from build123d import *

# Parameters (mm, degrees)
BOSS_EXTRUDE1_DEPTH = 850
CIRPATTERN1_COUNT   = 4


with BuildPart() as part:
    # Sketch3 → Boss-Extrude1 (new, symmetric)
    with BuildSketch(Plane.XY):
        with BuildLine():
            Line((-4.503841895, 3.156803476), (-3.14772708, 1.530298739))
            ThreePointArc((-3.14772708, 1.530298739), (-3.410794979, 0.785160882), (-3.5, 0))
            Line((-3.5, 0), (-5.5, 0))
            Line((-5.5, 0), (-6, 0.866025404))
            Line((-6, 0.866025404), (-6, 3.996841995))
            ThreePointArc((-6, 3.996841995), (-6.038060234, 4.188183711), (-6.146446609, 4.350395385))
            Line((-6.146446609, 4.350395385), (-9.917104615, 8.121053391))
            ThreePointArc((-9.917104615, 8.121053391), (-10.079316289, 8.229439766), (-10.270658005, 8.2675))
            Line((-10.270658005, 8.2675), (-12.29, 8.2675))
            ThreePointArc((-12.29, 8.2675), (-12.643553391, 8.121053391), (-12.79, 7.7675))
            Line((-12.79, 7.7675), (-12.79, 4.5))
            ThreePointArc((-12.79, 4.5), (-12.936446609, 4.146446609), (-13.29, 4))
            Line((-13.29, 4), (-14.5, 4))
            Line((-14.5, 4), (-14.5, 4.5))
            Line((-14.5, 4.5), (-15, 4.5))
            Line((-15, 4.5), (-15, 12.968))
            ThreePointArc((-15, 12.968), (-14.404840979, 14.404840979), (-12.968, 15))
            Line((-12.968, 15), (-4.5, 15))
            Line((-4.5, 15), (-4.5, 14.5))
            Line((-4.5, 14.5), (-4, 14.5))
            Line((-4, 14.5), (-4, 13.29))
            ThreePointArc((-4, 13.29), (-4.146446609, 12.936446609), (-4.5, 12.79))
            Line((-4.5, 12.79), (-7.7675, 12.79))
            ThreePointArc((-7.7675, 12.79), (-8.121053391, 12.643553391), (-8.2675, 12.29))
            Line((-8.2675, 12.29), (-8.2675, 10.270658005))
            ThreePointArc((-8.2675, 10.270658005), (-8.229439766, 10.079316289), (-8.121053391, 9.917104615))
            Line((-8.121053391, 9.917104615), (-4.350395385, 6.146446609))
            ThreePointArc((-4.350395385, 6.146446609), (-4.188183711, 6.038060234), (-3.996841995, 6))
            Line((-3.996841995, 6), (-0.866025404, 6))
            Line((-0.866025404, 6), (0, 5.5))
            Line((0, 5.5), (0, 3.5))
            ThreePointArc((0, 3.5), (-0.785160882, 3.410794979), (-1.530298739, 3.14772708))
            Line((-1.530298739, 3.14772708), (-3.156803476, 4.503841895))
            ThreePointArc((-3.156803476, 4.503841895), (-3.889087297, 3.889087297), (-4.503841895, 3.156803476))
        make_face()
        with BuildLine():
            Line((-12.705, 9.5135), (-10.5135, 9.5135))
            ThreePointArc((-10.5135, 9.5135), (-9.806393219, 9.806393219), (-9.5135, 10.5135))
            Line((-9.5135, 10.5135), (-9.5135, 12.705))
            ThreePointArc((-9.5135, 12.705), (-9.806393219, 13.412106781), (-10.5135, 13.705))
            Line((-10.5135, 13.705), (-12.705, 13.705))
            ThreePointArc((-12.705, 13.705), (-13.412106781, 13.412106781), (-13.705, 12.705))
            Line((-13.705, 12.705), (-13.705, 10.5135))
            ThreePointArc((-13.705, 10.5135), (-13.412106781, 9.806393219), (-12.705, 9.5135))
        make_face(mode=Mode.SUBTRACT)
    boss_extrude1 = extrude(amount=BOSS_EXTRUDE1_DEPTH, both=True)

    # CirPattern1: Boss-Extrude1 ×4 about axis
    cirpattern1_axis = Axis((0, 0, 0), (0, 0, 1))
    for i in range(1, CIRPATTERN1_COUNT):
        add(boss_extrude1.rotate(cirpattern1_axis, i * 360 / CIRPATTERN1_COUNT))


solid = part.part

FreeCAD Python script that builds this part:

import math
import FreeCAD as App
import Part
import Sketcher
Q = App.Units.Quantity

doc = App.newDocument("Part")
params = doc.addObject("Spreadsheet::Sheet", "Params")
for row, (alias, value) in enumerate([
    ("sketch1_radius", "1 mm"),
    ("sketch1_radius2", "5.5 mm"),
    ("sketch1_radius3", "3.5 mm"),
    ("sketch1_radius4", "0.5 mm"),
    ("sketch1_width", "2 mm"),
    ("pad1_length", "1700 mm"),
], start=1):
    params.set(f"A{row}", alias)
    params.set(f"B{row}", "=" + value)
    params.setAlias(f"B{row}", alias)

body = doc.addObject("PartDesign::Body", "Body")

# Sketch on XY plane
sketch1 = body.newObject("Sketcher::SketchObject", "Sketch")
sketch1.AttachmentSupport = (doc.getObject("XY_Plane"), [""])
sketch1.MapMode = "FlatFace"
sketch1.addGeometry(Part.LineSegment(App.Vector(-3.15, 1.53, 0), App.Vector(-4.5, 3.16, 0)), False)
sketch1.addGeometry(Part.ArcOfCircle(Part.Circle(App.Vector(0, 0, 0), App.Vector(0, 0, 1), 5.5), math.radians(125.03), math.radians(144.97)), False)
sketch1.addGeometry(Part.LineSegment(App.Vector(-3.16, 4.5, 0), App.Vector(-1.53, 3.15, 0)), False)
sketch1.addGeometry(Part.ArcOfCircle(Part.Circle(App.Vector(0, 0, 0), App.Vector(0, 0, 1), 3.5), math.radians(90), math.radians(116)), False)
sketch1.addGeometry(Part.LineSegment(App.Vector(0, 3.5, 0), App.Vector(0, 5.5, 0)), False)
sketch1.addGeometry(Part.LineSegment(App.Vector(0, 5.5, 0), App.Vector(-0.87, 6, 0)), False)
sketch1.addGeometry(Part.LineSegment(App.Vector(-0.87, 6, 0), App.Vector(-4, 6, 0)), False)
sketch1.addGeometry(Part.ArcOfCircle(Part.Circle(App.Vector(-4, 6.5, 0), App.Vector(0, 0, 1), 0.5), math.radians(-135), math.radians(-90)), False)
sketch1.addGeometry(Part.LineSegment(App.Vector(-4.35, 6.15, 0), App.Vector(-8.12, 9.92, 0)), False)
sketch1.addGeometry(Part.ArcOfCircle(Part.Circle(App.Vector(-7.77, 10.27, 0), App.Vector(0, 0, 1), 0.5), math.radians(-180), math.radians(-135)), False)
sketch1.addGeometry(Part.LineSegment(App.Vector(-8.27, 10.27, 0), App.Vector(-8.27, 12.29, 0)), False)
sketch1.addGeometry(Part.ArcOfCircle(Part.Circle(App.Vector(-7.77, 12.29, 0), App.Vector(0, 0, 1), 0.5), math.radians(90), math.radians(180)), False)
sketch1.addGeometry(Part.LineSegment(App.Vector(-7.77, 12.79, 0), App.Vector(-4.5, 12.79, 0)), False)
sketch1.addGeometry(Part.ArcOfCircle(Part.Circle(App.Vector(-4.5, 13.29, 0), App.Vector(0, 0, 1), 0.5), math.radians(-90), math.radians(0)), False)
sketch1.addGeometry(Part.LineSegment(App.Vector(-4, 13.29, 0), App.Vector(-4, 14.5, 0)), False)
sketch1.addGeometry(Part.LineSegment(App.Vector(-4, 14.5, 0), App.Vector(-4.5, 14.5, 0)), False)
sketch1.addGeometry(Part.LineSegment(App.Vector(-4.5, 14.5, 0), App.Vector(-4.5, 15, 0)), False)
sketch1.addGeometry(Part.LineSegment(App.Vector(-4.5, 15, 0), App.Vector(-12.97, 15, 0)), False)
sketch1.addGeometry(Part.ArcOfCircle(Part.Circle(App.Vector(-12.97, 12.97, 0), App.Vector(0, 0, 1), 2.03), math.radians(90), math.radians(180)), False)
sketch1.addGeometry(Part.LineSegment(App.Vector(-15, 12.97, 0), App.Vector(-15, 4.5, 0)), False)
sketch1.addGeometry(Part.LineSegment(App.Vector(-15, 4.5, 0), App.Vector(-14.5, 4.5, 0)), False)
sketch1.addGeometry(Part.LineSegment(App.Vector(-14.5, 4.5, 0), App.Vector(-14.5, 4, 0)), False)
sketch1.addGeometry(Part.LineSegment(App.Vector(-14.5, 4, 0), App.Vector(-13.29, 4, 0)), False)
sketch1.addGeometry(Part.ArcOfCircle(Part.Circle(App.Vector(-13.29, 4.5, 0), App.Vector(0, 0, 1), 0.5), math.radians(-90), math.radians(0)), False)
sketch1.addGeometry(Part.LineSegment(App.Vector(-12.79, 4.5, 0), App.Vector(-12.79, 7.77, 0)), False)
sketch1.addGeometry(Part.ArcOfCircle(Part.Circle(App.Vector(-12.29, 7.77, 0), App.Vector(0, 0, 1), 0.5), math.radians(90), math.radians(180)), False)
sketch1.addGeometry(Part.LineSegment(App.Vector(-12.29, 8.27, 0), App.Vector(-10.27, 8.27, 0)), False)
sketch1.addGeometry(Part.ArcOfCircle(Part.Circle(App.Vector(-10.27, 7.77, 0), App.Vector(0, 0, 1), 0.5), math.radians(45), math.radians(90)), False)
sketch1.addGeometry(Part.LineSegment(App.Vector(-9.92, 8.12, 0), App.Vector(-6.15, 4.35, 0)), False)
sketch1.addGeometry(Part.ArcOfCircle(Part.Circle(App.Vector(-6.5, 4, 0), App.Vector(0, 0, 1), 0.5), math.radians(0), math.radians(45)), False)
sketch1.addGeometry(Part.LineSegment(App.Vector(-6, 4, 0), App.Vector(-6, 0.87, 0)), False)
sketch1.addGeometry(Part.LineSegment(App.Vector(-6, 0.87, 0), App.Vector(-5.5, 0, 0)), False)
sketch1.addGeometry(Part.LineSegment(App.Vector(-5.5, 0, 0), App.Vector(-3.5, 0, 0)), False)
sketch1.addGeometry(Part.ArcOfCircle(Part.Circle(App.Vector(0, 0, 0), App.Vector(0, 0, 1), 3.5), math.radians(154), math.radians(180)), False)
sketch1.addGeometry(Part.ArcOfCircle(Part.Circle(App.Vector(-12.7, 10.51, 0), App.Vector(0, 0, 1), 1), math.radians(-180), math.radians(-90)), False)
sketch1.addGeometry(Part.LineSegment(App.Vector(-13.71, 10.51, 0), App.Vector(-13.71, 12.71, 0)), False)
sketch1.addGeometry(Part.ArcOfCircle(Part.Circle(App.Vector(-12.7, 12.7, 0), App.Vector(0, 0, 1), 1), math.radians(90), math.radians(180)), False)
sketch1.addGeometry(Part.LineSegment(App.Vector(-12.71, 13.71, 0), App.Vector(-10.51, 13.71, 0)), False)
sketch1.addGeometry(Part.ArcOfCircle(Part.Circle(App.Vector(-10.51, 12.7, 0), App.Vector(0, 0, 1), 1), math.radians(0), math.radians(90)), False)
sketch1.addGeometry(Part.LineSegment(App.Vector(-9.51, 12.71, 0), App.Vector(-9.51, 10.51, 0)), False)
sketch1.addGeometry(Part.ArcOfCircle(Part.Circle(App.Vector(-10.51, 10.51, 0), App.Vector(0, 0, 1), 1), math.radians(-90), math.radians(0)), False)
sketch1.addGeometry(Part.LineSegment(App.Vector(-10.51, 9.51, 0), App.Vector(-12.71, 9.51, 0)), False)
sketch1.addConstraint(Sketcher.Constraint("Coincident", 0, 2, 1, 2))
sketch1.addConstraint(Sketcher.Constraint("Coincident", 1, 1, 2, 1))
sketch1.addConstraint(Sketcher.Constraint("Coincident", 2, 2, 3, 2))
sketch1.addConstraint(Sketcher.Constraint("Coincident", 3, 1, 4, 1))
sketch1.addConstraint(Sketcher.Constraint("Coincident", 4, 2, 5, 1))
sketch1.addConstraint(Sketcher.Constraint("Coincident", 5, 2, 6, 1))
sketch1.addConstraint(Sketcher.Constraint("Tangent", 6, 2, 7, 2))
sketch1.addConstraint(Sketcher.Constraint("Tangent", 7, 1, 8, 1))
sketch1.addConstraint(Sketcher.Constraint("Tangent", 8, 2, 9, 2))
sketch1.addConstraint(Sketcher.Constraint("Tangent", 9, 1, 10, 1))
sketch1.addConstraint(Sketcher.Constraint("Tangent", 10, 2, 11, 2))
sketch1.addConstraint(Sketcher.Constraint("Tangent", 11, 1, 12, 1))
sketch1.addConstraint(Sketcher.Constraint("Tangent", 12, 2, 13, 1))
sketch1.addConstraint(Sketcher.Constraint("Tangent", 13, 2, 14, 1))
sketch1.addConstraint(Sketcher.Constraint("Coincident", 14, 2, 15, 1))
sketch1.addConstraint(Sketcher.Constraint("Coincident", 15, 2, 16, 1))
sketch1.addConstraint(Sketcher.Constraint("Coincident", 16, 2, 17, 1))
sketch1.addConstraint(Sketcher.Constraint("Tangent", 17, 2, 18, 1))
sketch1.addConstraint(Sketcher.Constraint("Tangent", 18, 2, 19, 1))
sketch1.addConstraint(Sketcher.Constraint("Coincident", 19, 2, 20, 1))
sketch1.addConstraint(Sketcher.Constraint("Coincident", 20, 2, 21, 1))
sketch1.addConstraint(Sketcher.Constraint("Coincident", 21, 2, 22, 1))
sketch1.addConstraint(Sketcher.Constraint("Tangent", 22, 2, 23, 1))
sketch1.addConstraint(Sketcher.Constraint("Tangent", 23, 2, 24, 1))
sketch1.addConstraint(Sketcher.Constraint("Tangent", 24, 2, 25, 2))
sketch1.addConstraint(Sketcher.Constraint("Tangent", 25, 1, 26, 1))
sketch1.addConstraint(Sketcher.Constraint("Tangent", 26, 2, 27, 2))
sketch1.addConstraint(Sketcher.Constraint("Tangent", 27, 1, 28, 1))
sketch1.addConstraint(Sketcher.Constraint("Tangent", 28, 2, 29, 2))
sketch1.addConstraint(Sketcher.Constraint("Tangent", 29, 1, 30, 1))
sketch1.addConstraint(Sketcher.Constraint("Coincident", 30, 2, 31, 1))
sketch1.addConstraint(Sketcher.Constraint("Coincident", 31, 2, 32, 1))
sketch1.addConstraint(Sketcher.Constraint("Coincident", 32, 2, 33, 2))
sketch1.addConstraint(Sketcher.Constraint("Coincident", 33, 1, 0, 1))
sketch1.addConstraint(Sketcher.Constraint("Tangent", 34, 1, 35, 1))
sketch1.addConstraint(Sketcher.Constraint("Tangent", 35, 2, 36, 2))
sketch1.addConstraint(Sketcher.Constraint("Tangent", 36, 1, 37, 1))
sketch1.addConstraint(Sketcher.Constraint("Tangent", 37, 2, 38, 2))
sketch1.addConstraint(Sketcher.Constraint("Tangent", 38, 1, 39, 1))
sketch1.addConstraint(Sketcher.Constraint("Tangent", 39, 2, 40, 2))
sketch1.addConstraint(Sketcher.Constraint("Tangent", 40, 1, 41, 1))
sketch1.addConstraint(Sketcher.Constraint("Tangent", 41, 2, 34, 2))
sketch1.addConstraint(Sketcher.Constraint("Vertical", 4))
sketch1.addConstraint(Sketcher.Constraint("Horizontal", 6))
sketch1.addConstraint(Sketcher.Constraint("Vertical", 10))
sketch1.addConstraint(Sketcher.Constraint("Horizontal", 12))
sketch1.addConstraint(Sketcher.Constraint("Vertical", 14))
sketch1.addConstraint(Sketcher.Constraint("Horizontal", 15))
sketch1.addConstraint(Sketcher.Constraint("Vertical", 16))
sketch1.addConstraint(Sketcher.Constraint("Horizontal", 17))
sketch1.addConstraint(Sketcher.Constraint("Vertical", 19))
sketch1.addConstraint(Sketcher.Constraint("Horizontal", 20))
sketch1.addConstraint(Sketcher.Constraint("Vertical", 21))
sketch1.addConstraint(Sketcher.Constraint("Horizontal", 22))
sketch1.addConstraint(Sketcher.Constraint("Vertical", 24))
sketch1.addConstraint(Sketcher.Constraint("Horizontal", 26))
sketch1.addConstraint(Sketcher.Constraint("Vertical", 30))
sketch1.addConstraint(Sketcher.Constraint("Horizontal", 32))
sketch1.addConstraint(Sketcher.Constraint("Vertical", 35))
sketch1.addConstraint(Sketcher.Constraint("Horizontal", 37))
sketch1.addConstraint(Sketcher.Constraint("Vertical", 39))
sketch1.addConstraint(Sketcher.Constraint("Horizontal", 41))
sketch1.addConstraint(Sketcher.Constraint("Coincident", 1, 3, -1, 1))
sketch1.addConstraint(Sketcher.Constraint("Coincident", 3, 3, -1, 1))
sketch1.addConstraint(Sketcher.Constraint("Coincident", 33, 3, -1, 1))
sketch1.addConstraint(Sketcher.Constraint("Equal", 7, 9))
sketch1.addConstraint(Sketcher.Constraint("Equal", 9, 11))
sketch1.addConstraint(Sketcher.Constraint("Equal", 11, 13))
sketch1.addConstraint(Sketcher.Constraint("Equal", 13, 23))
sketch1.addConstraint(Sketcher.Constraint("Equal", 23, 25))
sketch1.addConstraint(Sketcher.Constraint("Equal", 25, 27))
sketch1.addConstraint(Sketcher.Constraint("Equal", 27, 29))
sketch1.addConstraint(Sketcher.Constraint("Equal", 3, 33))
sketch1.addConstraint(Sketcher.Constraint("Equal", 34, 36))
sketch1.addConstraint(Sketcher.Constraint("Equal", 36, 38))
sketch1.addConstraint(Sketcher.Constraint("Equal", 38, 40))
sketch1.addConstraint(Sketcher.Constraint("PointOnObject", 3, 1, -2))
sketch1.addConstraint(Sketcher.Constraint("PointOnObject", 31, 2, -1))
sketch1.addConstraint(Sketcher.Constraint("Parallel", 8, 28))
sketch1.addConstraint(Sketcher.Constraint("Horizontal", 23, 3, 19, 2))
sketch1.addConstraint(Sketcher.Constraint("Vertical", 12, 2, 15, 2))
sketch1.addConstraint(Sketcher.Constraint("Equal", 15, 20))
sketch1.addConstraint(Sketcher.Constraint("Equal", 32, 4))
sketch1.addConstraint(Sketcher.Constraint("Equal", 26, 10))
sketch1.addConstraint(Sketcher.Constraint("Equal", 22, 14))
sketch1.addConstraint(Sketcher.Constraint("Equal", 20, 16))
sketch1.addConstraint(Sketcher.Constraint("Equal", 17, 19))
sketch1.addConstraint(Sketcher.Constraint("Equal", 12, 24))
sketch1.addConstraint(Sketcher.Constraint("Equal", 6, 30))
sketch1.addConstraint(Sketcher.Constraint("Equal", 41, 35))
sketch1.addConstraint(Sketcher.Constraint("Equal", 0, 2))
sketch1.addConstraint(Sketcher.Constraint("Equal", 8, 28))
sketch1.addConstraint(Sketcher.Constraint("Equal", 5, 31))
sketch1.addConstraint(Sketcher.Constraint("Radius", 34, Q("1 mm")))
sketch1.addConstraint(Sketcher.Constraint("Radius", 1, Q("5.5 mm")))
sketch1.addConstraint(Sketcher.Constraint("Radius", 3, Q("3.5 mm")))
sketch1.addConstraint(Sketcher.Constraint("Radius", 7, Q("0.5 mm")))
sketch1.addConstraint(Sketcher.Constraint("DistanceX", 32, 1, 32, 2, Q("2 mm")))
sketch1.addConstraint(Sketcher.Constraint("Angle", 5, Q("150 deg")))
sketch1.addConstraint(Sketcher.Constraint("Angle", 8, Q("135 deg")))
sketch1.addConstraint(Sketcher.Constraint("Distance", 5, Q("1 mm")))
sketch1.addConstraint(Sketcher.Constraint("DistanceX", 13, 2, -1, 1, Q("4 mm")))
sketch1.addConstraint(Sketcher.Constraint("DistanceY", -1, 1, 16, 2, Q("15 mm")))
sketch1.addConstraint(Sketcher.Constraint("Radius", 18, Q("2.032 mm")))
sketch1.addConstraint(Sketcher.Constraint("DistanceX", 22, 1, 22, 2, Q("1.21 mm")))
sketch1.addConstraint(Sketcher.Constraint("Angle", 0, Q("129.82 deg")))
sketch1.addConstraint(Sketcher.Constraint("Angle", 2, Q("-39.82 deg")))
sketch1.addConstraint(Sketcher.Constraint("DistanceX", 12, 1, 12, 2, Q("3.2675 mm")))
sketch1.addConstraint(Sketcher.Constraint("DistanceX", 37, 1, 37, 2, Q("2.1915 mm")))
sketch1.addConstraint(Sketcher.Constraint("DistanceX", 34, 3, -1, 1, Q("12.705 mm")))
sketch1.addConstraint(Sketcher.Constraint("DistanceY", -1, 1, 36, 3, Q("12.705 mm")))
sketch1.addConstraint(Sketcher.Constraint("DistanceX", 0, 2, 7, 3, Q("0.507 mm")))
sketch1.addConstraint(Sketcher.Constraint("DistanceX", 26, 1, 26, 2, Q("2.019342 mm")))
sketch1.setExpression("Constraints[93]", "Params.sketch1_radius")
sketch1.setExpression("Constraints[94]", "Params.sketch1_radius2")
sketch1.setExpression("Constraints[95]", "Params.sketch1_radius3")
sketch1.setExpression("Constraints[96]", "Params.sketch1_radius4")
sketch1.setExpression("Constraints[97]", "Params.sketch1_width")
pad1 = body.newObject("PartDesign::Pad", "Pad")
pad1.Profile = sketch1
pad1.setExpression("Length", "Params.pad1_length")
pad1.Midplane = True
doc.recompute()

polarpattern = body.newObject("PartDesign::PolarPattern", "PolarPattern")
polarpattern.Originals = [pad1]
polarpattern.Axis = (doc.getObject("Z_Axis"), [""])
polarpattern.Angle = 360
polarpattern.Occurrences = 4
body.Tip = polarpattern

doc.recompute()
